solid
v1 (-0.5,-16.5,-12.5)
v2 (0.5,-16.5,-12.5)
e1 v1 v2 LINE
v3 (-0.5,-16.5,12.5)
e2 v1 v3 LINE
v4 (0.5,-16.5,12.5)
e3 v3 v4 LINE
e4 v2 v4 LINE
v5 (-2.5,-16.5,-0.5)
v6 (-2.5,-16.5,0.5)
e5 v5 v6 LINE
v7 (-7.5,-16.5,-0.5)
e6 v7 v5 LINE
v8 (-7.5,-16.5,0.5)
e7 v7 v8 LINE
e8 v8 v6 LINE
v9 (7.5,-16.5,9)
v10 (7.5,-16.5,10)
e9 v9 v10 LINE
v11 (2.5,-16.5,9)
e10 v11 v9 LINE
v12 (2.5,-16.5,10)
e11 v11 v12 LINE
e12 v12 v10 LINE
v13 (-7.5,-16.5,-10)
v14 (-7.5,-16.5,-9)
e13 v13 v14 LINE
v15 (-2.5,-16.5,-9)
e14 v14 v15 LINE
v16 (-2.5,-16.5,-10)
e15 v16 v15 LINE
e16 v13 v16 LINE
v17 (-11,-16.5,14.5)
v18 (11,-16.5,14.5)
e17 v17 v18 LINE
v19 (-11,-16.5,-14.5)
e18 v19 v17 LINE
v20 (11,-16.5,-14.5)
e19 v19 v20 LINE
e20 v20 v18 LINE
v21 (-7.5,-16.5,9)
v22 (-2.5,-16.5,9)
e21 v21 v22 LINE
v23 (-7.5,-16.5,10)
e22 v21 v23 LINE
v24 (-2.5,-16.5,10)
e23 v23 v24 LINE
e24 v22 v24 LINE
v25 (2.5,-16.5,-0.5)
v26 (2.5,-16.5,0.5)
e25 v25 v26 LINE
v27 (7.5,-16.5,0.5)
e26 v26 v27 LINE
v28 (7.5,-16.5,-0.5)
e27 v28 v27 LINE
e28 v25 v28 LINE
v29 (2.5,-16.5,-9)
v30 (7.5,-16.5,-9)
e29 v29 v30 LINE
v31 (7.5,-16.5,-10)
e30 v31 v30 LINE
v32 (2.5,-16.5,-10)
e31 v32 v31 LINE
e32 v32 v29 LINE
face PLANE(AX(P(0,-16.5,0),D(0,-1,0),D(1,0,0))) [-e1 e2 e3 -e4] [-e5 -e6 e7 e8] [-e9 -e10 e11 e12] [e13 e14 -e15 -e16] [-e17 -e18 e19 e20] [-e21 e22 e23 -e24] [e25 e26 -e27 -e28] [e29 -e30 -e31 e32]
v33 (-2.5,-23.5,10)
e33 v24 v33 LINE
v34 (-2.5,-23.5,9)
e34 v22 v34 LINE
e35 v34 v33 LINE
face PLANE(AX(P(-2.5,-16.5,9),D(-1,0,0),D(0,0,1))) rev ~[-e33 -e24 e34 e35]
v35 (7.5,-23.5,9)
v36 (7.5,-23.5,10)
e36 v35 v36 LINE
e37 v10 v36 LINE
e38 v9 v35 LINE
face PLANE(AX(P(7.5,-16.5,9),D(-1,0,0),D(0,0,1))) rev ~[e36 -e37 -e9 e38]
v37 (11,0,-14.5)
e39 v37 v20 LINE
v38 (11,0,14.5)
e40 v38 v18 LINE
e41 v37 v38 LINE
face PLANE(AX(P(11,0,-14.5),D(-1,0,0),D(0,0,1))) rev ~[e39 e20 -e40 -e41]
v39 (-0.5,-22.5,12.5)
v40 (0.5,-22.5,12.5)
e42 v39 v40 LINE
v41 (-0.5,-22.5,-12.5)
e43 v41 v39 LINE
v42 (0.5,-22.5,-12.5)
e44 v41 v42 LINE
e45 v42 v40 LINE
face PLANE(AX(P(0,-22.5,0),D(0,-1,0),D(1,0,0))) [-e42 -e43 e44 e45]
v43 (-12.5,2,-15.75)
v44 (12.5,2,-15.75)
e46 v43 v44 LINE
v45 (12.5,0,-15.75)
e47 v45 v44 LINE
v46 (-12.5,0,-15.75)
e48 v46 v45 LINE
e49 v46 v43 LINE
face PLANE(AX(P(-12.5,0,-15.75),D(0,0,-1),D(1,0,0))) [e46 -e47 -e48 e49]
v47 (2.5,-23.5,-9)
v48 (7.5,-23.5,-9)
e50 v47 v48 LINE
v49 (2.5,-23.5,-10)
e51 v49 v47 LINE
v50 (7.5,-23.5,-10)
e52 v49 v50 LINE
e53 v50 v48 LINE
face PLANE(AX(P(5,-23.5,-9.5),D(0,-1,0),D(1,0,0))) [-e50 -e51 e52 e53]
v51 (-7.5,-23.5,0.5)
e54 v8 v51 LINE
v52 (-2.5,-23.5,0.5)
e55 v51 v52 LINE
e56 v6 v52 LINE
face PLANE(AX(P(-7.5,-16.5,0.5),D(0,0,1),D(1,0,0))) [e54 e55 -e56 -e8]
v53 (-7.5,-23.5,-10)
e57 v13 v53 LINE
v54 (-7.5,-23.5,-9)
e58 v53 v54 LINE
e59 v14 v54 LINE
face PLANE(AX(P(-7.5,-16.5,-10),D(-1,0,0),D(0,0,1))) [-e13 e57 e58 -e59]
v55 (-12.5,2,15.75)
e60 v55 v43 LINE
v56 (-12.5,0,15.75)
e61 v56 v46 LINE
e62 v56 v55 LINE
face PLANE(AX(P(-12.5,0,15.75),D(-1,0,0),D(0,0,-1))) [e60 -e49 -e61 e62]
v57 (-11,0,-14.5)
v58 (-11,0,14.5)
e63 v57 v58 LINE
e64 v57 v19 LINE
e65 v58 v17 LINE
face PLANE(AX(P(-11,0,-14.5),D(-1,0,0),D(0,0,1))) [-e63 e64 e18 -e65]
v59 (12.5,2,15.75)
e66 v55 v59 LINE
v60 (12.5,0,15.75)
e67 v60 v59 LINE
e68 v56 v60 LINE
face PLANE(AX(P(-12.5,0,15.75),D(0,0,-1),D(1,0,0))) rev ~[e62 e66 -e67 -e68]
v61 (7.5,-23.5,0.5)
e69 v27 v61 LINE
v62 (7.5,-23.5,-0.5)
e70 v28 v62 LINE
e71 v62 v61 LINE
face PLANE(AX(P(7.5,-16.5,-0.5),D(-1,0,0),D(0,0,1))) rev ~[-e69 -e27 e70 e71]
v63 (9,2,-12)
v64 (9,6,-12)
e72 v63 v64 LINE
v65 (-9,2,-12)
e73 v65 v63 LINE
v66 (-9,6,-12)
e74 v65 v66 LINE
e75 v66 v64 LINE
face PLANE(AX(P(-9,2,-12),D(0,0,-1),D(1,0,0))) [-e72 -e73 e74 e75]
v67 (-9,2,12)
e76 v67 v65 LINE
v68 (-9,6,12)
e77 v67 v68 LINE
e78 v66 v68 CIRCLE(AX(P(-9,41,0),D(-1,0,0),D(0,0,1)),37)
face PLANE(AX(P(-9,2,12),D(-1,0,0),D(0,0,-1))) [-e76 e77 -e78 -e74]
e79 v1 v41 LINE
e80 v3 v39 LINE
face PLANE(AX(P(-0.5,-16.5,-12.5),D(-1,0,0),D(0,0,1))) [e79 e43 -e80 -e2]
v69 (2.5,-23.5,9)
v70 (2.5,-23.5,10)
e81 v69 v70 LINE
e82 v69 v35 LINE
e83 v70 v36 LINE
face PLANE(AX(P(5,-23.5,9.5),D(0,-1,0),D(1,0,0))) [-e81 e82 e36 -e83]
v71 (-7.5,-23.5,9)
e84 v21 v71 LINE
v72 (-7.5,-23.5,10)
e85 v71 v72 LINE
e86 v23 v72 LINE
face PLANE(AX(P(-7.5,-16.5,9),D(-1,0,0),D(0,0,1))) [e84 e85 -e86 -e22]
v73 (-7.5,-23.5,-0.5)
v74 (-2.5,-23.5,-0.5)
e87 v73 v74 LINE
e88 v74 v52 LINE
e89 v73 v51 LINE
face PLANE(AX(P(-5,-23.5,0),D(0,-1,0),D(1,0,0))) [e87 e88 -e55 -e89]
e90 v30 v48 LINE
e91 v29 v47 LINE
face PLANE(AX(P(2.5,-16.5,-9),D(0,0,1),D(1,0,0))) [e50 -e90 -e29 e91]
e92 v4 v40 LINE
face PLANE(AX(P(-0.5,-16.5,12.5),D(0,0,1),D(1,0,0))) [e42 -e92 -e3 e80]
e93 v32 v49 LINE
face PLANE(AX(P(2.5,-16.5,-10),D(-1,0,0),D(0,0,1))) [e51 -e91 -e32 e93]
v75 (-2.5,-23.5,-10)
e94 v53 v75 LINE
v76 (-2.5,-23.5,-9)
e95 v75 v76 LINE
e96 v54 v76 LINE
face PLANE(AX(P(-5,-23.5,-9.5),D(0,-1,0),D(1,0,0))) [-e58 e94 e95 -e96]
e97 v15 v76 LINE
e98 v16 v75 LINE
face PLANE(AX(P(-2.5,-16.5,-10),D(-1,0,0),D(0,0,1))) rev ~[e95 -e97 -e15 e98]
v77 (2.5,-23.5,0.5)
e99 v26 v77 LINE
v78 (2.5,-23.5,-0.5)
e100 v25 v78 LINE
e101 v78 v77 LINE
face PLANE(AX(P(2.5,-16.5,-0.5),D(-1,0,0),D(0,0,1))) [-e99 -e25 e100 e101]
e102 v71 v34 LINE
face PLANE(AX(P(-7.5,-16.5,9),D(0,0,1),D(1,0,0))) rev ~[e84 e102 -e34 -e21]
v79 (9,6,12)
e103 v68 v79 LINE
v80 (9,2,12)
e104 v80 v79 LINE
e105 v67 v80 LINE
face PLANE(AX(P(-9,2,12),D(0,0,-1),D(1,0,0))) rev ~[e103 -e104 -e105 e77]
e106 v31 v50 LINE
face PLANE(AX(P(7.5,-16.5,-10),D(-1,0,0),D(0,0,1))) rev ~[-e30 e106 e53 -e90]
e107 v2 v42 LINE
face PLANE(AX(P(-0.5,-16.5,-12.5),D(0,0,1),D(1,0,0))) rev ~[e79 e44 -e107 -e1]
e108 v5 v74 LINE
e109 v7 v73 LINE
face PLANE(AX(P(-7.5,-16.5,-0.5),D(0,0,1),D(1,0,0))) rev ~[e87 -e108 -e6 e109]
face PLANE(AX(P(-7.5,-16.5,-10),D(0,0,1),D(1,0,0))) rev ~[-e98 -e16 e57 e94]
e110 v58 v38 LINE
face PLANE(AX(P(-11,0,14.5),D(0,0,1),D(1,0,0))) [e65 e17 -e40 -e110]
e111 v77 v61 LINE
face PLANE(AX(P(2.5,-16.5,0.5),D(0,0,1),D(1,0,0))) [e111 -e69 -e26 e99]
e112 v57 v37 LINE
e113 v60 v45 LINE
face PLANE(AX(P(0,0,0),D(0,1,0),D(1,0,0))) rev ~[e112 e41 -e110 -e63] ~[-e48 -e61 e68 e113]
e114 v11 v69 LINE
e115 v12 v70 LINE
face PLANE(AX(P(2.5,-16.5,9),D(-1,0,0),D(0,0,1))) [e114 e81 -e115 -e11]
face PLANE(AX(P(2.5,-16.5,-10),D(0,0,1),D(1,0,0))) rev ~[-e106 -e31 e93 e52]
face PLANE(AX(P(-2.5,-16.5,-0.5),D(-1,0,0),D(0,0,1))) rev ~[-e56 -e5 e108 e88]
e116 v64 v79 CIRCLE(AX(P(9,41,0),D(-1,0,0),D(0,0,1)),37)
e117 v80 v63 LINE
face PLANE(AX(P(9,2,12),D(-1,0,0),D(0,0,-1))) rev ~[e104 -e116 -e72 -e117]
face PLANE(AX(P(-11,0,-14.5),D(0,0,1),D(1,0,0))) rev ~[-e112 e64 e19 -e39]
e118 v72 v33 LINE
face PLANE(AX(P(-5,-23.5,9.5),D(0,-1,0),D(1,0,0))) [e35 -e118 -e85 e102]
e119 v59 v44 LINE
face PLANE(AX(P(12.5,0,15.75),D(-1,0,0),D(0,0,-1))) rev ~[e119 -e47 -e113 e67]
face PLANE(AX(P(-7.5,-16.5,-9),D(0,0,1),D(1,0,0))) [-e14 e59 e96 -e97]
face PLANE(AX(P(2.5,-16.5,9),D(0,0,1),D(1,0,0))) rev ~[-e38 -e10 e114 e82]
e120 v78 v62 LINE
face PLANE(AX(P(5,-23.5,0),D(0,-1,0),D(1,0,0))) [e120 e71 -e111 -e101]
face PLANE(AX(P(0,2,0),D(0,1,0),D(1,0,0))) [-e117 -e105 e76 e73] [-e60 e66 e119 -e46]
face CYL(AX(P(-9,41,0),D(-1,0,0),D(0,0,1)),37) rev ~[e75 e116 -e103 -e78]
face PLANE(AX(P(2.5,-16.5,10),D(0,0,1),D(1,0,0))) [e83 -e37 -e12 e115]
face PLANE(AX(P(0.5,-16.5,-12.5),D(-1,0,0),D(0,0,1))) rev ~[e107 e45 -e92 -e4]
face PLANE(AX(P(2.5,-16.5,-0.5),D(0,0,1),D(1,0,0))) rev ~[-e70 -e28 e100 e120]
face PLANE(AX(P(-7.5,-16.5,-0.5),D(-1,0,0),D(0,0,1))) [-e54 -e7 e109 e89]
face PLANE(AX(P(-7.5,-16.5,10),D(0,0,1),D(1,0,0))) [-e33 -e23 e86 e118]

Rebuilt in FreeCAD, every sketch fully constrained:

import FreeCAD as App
import Part
import Sketcher

doc = App.newDocument("Part")
body = doc.addObject("PartDesign::Body", "Body")

# Sketch on XZ plane
sketch1 = body.newObject("Sketcher::SketchObject", "Sketch")
sketch1.AttachmentSupport = (doc.getObject("XZ_Plane"), [""])
sketch1.MapMode = "FlatFace"
sketch1.addGeometry(Part.LineSegment(App.Vector(-12.5, -15.75, 0), App.Vector(-12.5, 15.75, 0)), False)
sketch1.addGeometry(Part.LineSegment(App.Vector(-12.5, 15.75, 0), App.Vector(12.5, 15.75, 0)), False)
sketch1.addGeometry(Part.LineSegment(App.Vector(12.5, 15.75, 0), App.Vector(12.5, -15.75, 0)), False)
sketch1.addGeometry(Part.LineSegment(App.Vector(12.5, -15.75, 0), App.Vector(-12.5, -15.75, 0)), False)
sketch1.addConstraint(Sketcher.Constraint("Coincident", 0, 2, 1, 1))
sketch1.addConstraint(Sketcher.Constraint("Coincident", 1, 2, 2, 1))
sketch1.addConstraint(Sketcher.Constraint("Coincident", 2, 2, 3, 1))
sketch1.addConstraint(Sketcher.Constraint("Coincident", 3, 2, 0, 1))
sketch1.addConstraint(Sketcher.Constraint("Vertical", 0))
sketch1.addConstraint(Sketcher.Constraint("Horizontal", 1))
sketch1.addConstraint(Sketcher.Constraint("Vertical", 2))
sketch1.addConstraint(Sketcher.Constraint("Horizontal", 3))
sketch1.addConstraint(Sketcher.Constraint("Symmetric", 0, 2, 2, 2, -1, 1))
sketch1.addConstraint(Sketcher.Constraint("DistanceX", 1, 1, 1, 2, 25.0))
sketch1.addConstraint(Sketcher.Constraint("DistanceY", 0, 1, 0, 2, 31.5))
pad1 = body.newObject("PartDesign::Pad", "Pad")
pad1.Profile = sketch1
pad1.Length = 2
pad1.Reversed = True

# Sketch on XZ plane
sketch2 = body.newObject("Sketcher::SketchObject", "Sketch001")
sketch2.AttachmentSupport = (doc.getObject("XZ_Plane"), [""])
sketch2.MapMode = "FlatFace"
sketch2.addGeometry(Part.LineSegment(App.Vector(-11, 14.5, 0), App.Vector(-11, -14.5, 0)), False)
sketch2.addGeometry(Part.LineSegment(App.Vector(-11, -14.5, 0), App.Vector(11, -14.5, 0)), False)
sketch2.addGeometry(Part.LineSegment(App.Vector(11, -14.5, 0), App.Vector(11, 14.5, 0)), False)
sketch2.addGeometry(Part.LineSegment(App.Vector(11, 14.5, 0), App.Vector(-11, 14.5, 0)), False)
sketch2.addConstraint(Sketcher.Constraint("Coincident", 0, 2, 1, 1))
sketch2.addConstraint(Sketcher.Constraint("Coincident", 1, 2, 2, 1))
sketch2.addConstraint(Sketcher.Constraint("Coincident", 2, 2, 3, 1))
sketch2.addConstraint(Sketcher.Constraint("Coincident", 3, 2, 0, 1))
sketch2.addConstraint(Sketcher.Constraint("Vertical", 0))
sketch2.addConstraint(Sketcher.Constraint("Horizontal", 1))
sketch2.addConstraint(Sketcher.Constraint("Vertical", 2))
sketch2.addConstraint(Sketcher.Constraint("Horizontal", 3))
sketch2.addConstraint(Sketcher.Constraint("Symmetric", 0, 2, 2, 2, -1, 1))
sketch2.addConstraint(Sketcher.Constraint("DistanceX", 1, 1, 1, 2, 22.0))
sketch2.addConstraint(Sketcher.Constraint("DistanceY", 0, 2, 0, 1, 29.0))
pad2 = body.newObject("PartDesign::Pad", "Pad001")
pad2.Profile = sketch2
pad2.Length = 16.5

# Sketch on XZ plane
sketch3 = body.newObject("Sketcher::SketchObject", "Sketch002")
sketch3.AttachmentSupport = (doc.getObject("XZ_Plane"), [""])
sketch3.MapMode = "FlatFace"
sketch3.AttachmentOffset = App.Placement(App.Vector(0, 0, 16.5), App.Rotation())
sketch3.addGeometry(Part.LineSegment(App.Vector(-0.5, 12.5, 0), App.Vector(-0.5, -12.5, 0)), False)
sketch3.addGeometry(Part.LineSegment(App.Vector(-0.5, -12.5, 0), App.Vector(0.5, -12.5, 0)), False)
sketch3.addGeometry(Part.LineSegment(App.Vector(0.5, -12.5, 0), App.Vector(0.5, 12.5, 0)), False)
sketch3.addGeometry(Part.LineSegment(App.Vector(0.5, 12.5, 0), App.Vector(-0.5, 12.5, 0)), False)
sketch3.addConstraint(Sketcher.Constraint("Coincident", 0, 2, 1, 1))
sketch3.addConstraint(Sketcher.Constraint("Coincident", 1, 2, 2, 1))
sketch3.addConstraint(Sketcher.Constraint("Coincident", 2, 2, 3, 1))
sketch3.addConstraint(Sketcher.Constraint("Coincident", 3, 2, 0, 1))
sketch3.addConstraint(Sketcher.Constraint("Vertical", 0))
sketch3.addConstraint(Sketcher.Constraint("Horizontal", 1))
sketch3.addConstraint(Sketcher.Constraint("Vertical", 2))
sketch3.addConstraint(Sketcher.Constraint("Horizontal", 3))
sketch3.addConstraint(Sketcher.Constraint("Symmetric", 0, 2, 2, 2, -1, 1))
sketch3.addConstraint(Sketcher.Constraint("DistanceX", 1, 1, 1, 2, 1.0))
sketch3.addConstraint(Sketcher.Constraint("DistanceY", 0, 2, 0, 1, 25.0))
pad3 = body.newObject("PartDesign::Pad", "Pad002")
pad3.Profile = sketch3
pad3.Length = 6

# Sketch on XZ plane
sketch4 = body.newObject("Sketcher::SketchObject", "Sketch003")
sketch4.AttachmentSupport = (doc.getObject("XZ_Plane"), [""])
sketch4.MapMode = "FlatFace"
sketch4.AttachmentOffset = App.Placement(App.Vector(0, 0, 16.5), App.Rotation())
sketch4.addGeometry(Part.LineSegment(App.Vector(-7.5, 10, 0), App.Vector(-7.5, 9, 0)), False)
sketch4.addGeometry(Part.LineSegment(App.Vector(-7.5, 9, 0), App.Vector(-2.5, 9, 0)), False)
sketch4.addGeometry(Part.LineSegment(App.Vector(-2.5, 9, 0), App.Vector(-2.5, 10, 0)), False)
sketch4.addGeometry(Part.LineSegment(App.Vector(-2.5, 10, 0), App.Vector(-7.5, 10, 0)), False)
sketch4.addGeometry(Part.LineSegment(App.Vector(-7.5, 0.5, 0), App.Vector(-7.5, -0.5, 0)), False)
sketch4.addGeometry(Part.LineSegment(App.Vector(-7.5, -0.5, 0), App.Vector(-2.5, -0.5, 0)), False)
sketch4.addGeometry(Part.LineSegment(App.Vector(-2.5, -0.5, 0), App.Vector(-2.5, 0.5, 0)), False)
sketch4.addGeometry(Part.LineSegment(App.Vector(-2.5, 0.5, 0), App.Vector(-7.5, 0.5, 0)), False)
sketch4.addGeometry(Part.LineSegment(App.Vector(-7.5, -9, 0), App.Vector(-7.5, -10, 0)), False)
sketch4.addGeometry(Part.LineSegment(App.Vector(-7.5, -10, 0), App.Vector(-2.5, -10, 0)), False)
sketch4.addGeometry(Part.LineSegment(App.Vector(-2.5, -10, 0), App.Vector(-2.5, -9, 0)), False)
sketch4.addGeometry(Part.LineSegment(App.Vector(-2.5, -9, 0), App.Vector(-7.5, -9, 0)), False)
sketch4.addGeometry(Part.LineSegment(App.Vector(2.5, -9, 0), App.Vector(2.5, -10, 0)), False)
sketch4.addGeometry(Part.LineSegment(App.Vector(2.5, -10, 0), App.Vector(7.5, -10, 0)), False)
sketch4.addGeometry(Part.LineSegment(App.Vector(7.5, -10, 0), App.Vector(7.5, -9, 0)), False)
sketch4.addGeometry(Part.LineSegment(App.Vector(7.5, -9, 0), App.Vector(2.5, -9, 0)), False)
sketch4.addGeometry(Part.LineSegment(App.Vector(2.5, 0.5, 0), App.Vector(2.5, -0.5, 0)), False)
sketch4.addGeometry(Part.LineSegment(App.Vector(2.5, -0.5, 0), App.Vector(7.5, -0.5, 0)), False)
sketch4.addGeometry(Part.LineSegment(App.Vector(7.5, -0.5, 0), App.Vector(7.5, 0.5, 0)), False)
sketch4.addGeometry(Part.LineSegment(App.Vector(7.5, 0.5, 0), App.Vector(2.5, 0.5, 0)), False)
sketch4.addGeometry(Part.LineSegment(App.Vector(2.5, 10, 0), App.Vector(2.5, 9, 0)), False)
sketch4.addGeometry(Part.LineSegment(App.Vector(2.5, 9, 0), App.Vector(7.5, 9, 0)), False)
sketch4.addGeometry(Part.LineSegment(App.Vector(7.5, 9, 0), App.Vector(7.5, 10, 0)), False)
sketch4.addGeometry(Part.LineSegment(App.Vector(7.5, 10, 0), App.Vector(2.5, 10, 0)), False)
sketch4.addConstraint(Sketcher.Constraint("Coincident", 0, 2, 1, 1))
sketch4.addConstraint(Sketcher.Constraint("Coincident", 1, 2, 2, 1))
sketch4.addConstraint(Sketcher.Constraint("Coincident", 2, 2, 3, 1))
sketch4.addConstraint(Sketcher.Constraint("Coincident", 3, 2, 0, 1))
sketch4.addConstraint(Sketcher.Constraint("Coincident", 4, 2, 5, 1))
sketch4.addConstraint(Sketcher.Constraint("Coincident", 5, 2, 6, 1))
sketch4.addConstraint(Sketcher.Constraint("Coincident", 6, 2, 7, 1))
sketch4.addConstraint(Sketcher.Constraint("Coincident", 7, 2, 4, 1))
sketch4.addConstraint(Sketcher.Constraint("Coincident", 8, 2, 9, 1))
sketch4.addConstraint(Sketcher.Constraint("Coincident", 9, 2, 10, 1))
sketch4.addConstraint(Sketcher.Constraint("Coincident", 10, 2, 11, 1))
sketch4.addConstraint(Sketcher.Constraint("Coincident", 11, 2, 8, 1))
sketch4.addConstraint(Sketcher.Constraint("Coincident", 12, 2, 13, 1))
sketch4.addConstraint(Sketcher.Constraint("Coincident", 13, 2, 14, 1))
sketch4.addConstraint(Sketcher.Constraint("Coincident", 14, 2, 15, 1))
sketch4.addConstraint(Sketcher.Constraint("Coincident", 15, 2, 12, 1))
sketch4.addConstraint(Sketcher.Constraint("Coincident", 16, 2, 17, 1))
sketch4.addConstraint(Sketcher.Constraint("Coincident", 17, 2, 18, 1))
sketch4.addConstraint(Sketcher.Constraint("Coincident", 18, 2, 19, 1))
sketch4.addConstraint(Sketcher.Constraint("Coincident", 19, 2, 16, 1))
sketch4.addConstraint(Sketcher.Constraint("Coincident", 20, 2, 21, 1))
sketch4.addConstraint(Sketcher.Constraint("Coincident", 21, 2, 22, 1))
sketch4.addConstraint(Sketcher.Constraint("Coincident", 22, 2, 23, 1))
sketch4.addConstraint(Sketcher.Constraint("Coincident", 23, 2, 20, 1))
sketch4.addConstraint(Sketcher.Constraint("Vertical", 0))
sketch4.addConstraint(Sketcher.Constraint("Horizontal", 1))
sketch4.addConstraint(Sketcher.Constraint("Vertical", 2))
sketch4.addConstraint(Sketcher.Constraint("Horizontal", 3))
sketch4.addConstraint(Sketcher.Constraint("Vertical", 4))
sketch4.addConstraint(Sketcher.Constraint("Horizontal", 5))
sketch4.addConstraint(Sketcher.Constraint("Vertical", 6))
sketch4.addConstraint(Sketcher.Constraint("Horizontal", 7))
sketch4.addConstraint(Sketcher.Constraint("Vertical", 8))
sketch4.addConstraint(Sketcher.Constraint("Horizontal", 9))
sketch4.addConstraint(Sketcher.Constraint("Vertical", 10))
sketch4.addConstraint(Sketcher.Constraint("Horizontal", 11))
sketch4.addConstraint(Sketcher.Constraint("Vertical", 12))
sketch4.addConstraint(Sketcher.Constraint("Horizontal", 13))
sketch4.addConstraint(Sketcher.Constraint("Vertical", 14))
sketch4.addConstraint(Sketcher.Constraint("Horizontal", 15))
sketch4.addConstraint(Sketcher.Constraint("Vertical", 16))
sketch4.addConstraint(Sketcher.Constraint("Horizontal", 17))
sketch4.addConstraint(Sketcher.Constraint("Vertical", 18))
sketch4.addConstraint(Sketcher.Constraint("Horizontal", 19))
sketch4.addConstraint(Sketcher.Constraint("Vertical", 20))
sketch4.addConstraint(Sketcher.Constraint("Horizontal", 21))
sketch4.addConstraint(Sketcher.Constraint("Vertical", 22))
sketch4.addConstraint(Sketcher.Constraint("Horizontal", 23))
sketch4.addConstraint(Sketcher.Constraint("Symmetric", 2, 2, 12, 2, -1, 1))
sketch4.addConstraint(Sketcher.Constraint("Symmetric", 0, 2, 14, 2, -1, 1))
sketch4.addConstraint(Sketcher.Constraint("Symmetric", 6, 2, 16, 2, -1, 1))
sketch4.addConstraint(Sketcher.Constraint("Symmetric", 4, 2, 18, 2, -1, 1))
sketch4.addConstraint(Sketcher.Constraint("Symmetric", 10, 2, 20, 2, -1, 1))
sketch4.addConstraint(Sketcher.Constraint("Symmetric", 8, 2, 22, 2, -1, 1))
sketch4.addConstraint(Sketcher.Constraint("Symmetric", 9, 2, 12, 2, -2))
sketch4.addConstraint(Sketcher.Constraint("Symmetric", 11, 2, 14, 2, -2))
sketch4.addConstraint(Sketcher.Constraint("Horizontal", 5, 2, 16, 2))
sketch4.addConstraint(Sketcher.Constraint("Vertical", 3, 2, 4, 2))
sketch4.addConstraint(Sketcher.Constraint("Vertical", 2, 2, 5, 2))
sketch4.addConstraint(Sketcher.Constraint("Equal", 2, 4))
sketch4.addConstraint(Sketcher.Constraint("DistanceX", 1, 1, 1, 2, 5.0))
sketch4.addConstraint(Sketcher.Constraint("DistanceY", 0, 2, 0, 1, 1.0))
sketch4.addConstraint(Sketcher.Constraint("DistanceY", -1, 1, 0, 2, 9.0))
sketch4.addConstraint(Sketcher.Constraint("DistanceX", 9, 2, 12, 2, 5.0))
pad4 = body.newObject("PartDesign::Pad", "Pad003")
pad4.Profile = sketch4
pad4.Length = 7

# Sketch on XZ plane
sketch5 = body.newObject("Sketcher::SketchObject", "Sketch004")
sketch5.AttachmentSupport = (doc.getObject("XZ_Plane"), [""])
sketch5.MapMode = "FlatFace"
sketch5.AttachmentOffset = App.Placement(App.Vector(0, 0, -2), App.Rotation())
sketch5.addGeometry(Part.LineSegment(App.Vector(-9, -12, 0), App.Vector(-9, 12, 0)), False)
sketch5.addGeometry(Part.LineSegment(App.Vector(-9, 12, 0), App.Vector(9, 12, 0)), False)
sketch5.addGeometry(Part.LineSegment(App.Vector(9, 12, 0), App.Vector(9, -12, 0)), False)
sketch5.addGeometry(Part.LineSegment(App.Vector(9, -12, 0), App.Vector(-9, -12, 0)), False)
sketch5.addConstraint(Sketcher.Constraint("Coincident", 0, 2, 1, 1))
sketch5.addConstraint(Sketcher.Constraint("Coincident", 1, 2, 2, 1))
sketch5.addConstraint(Sketcher.Constraint("Coincident", 2, 2, 3, 1))
sketch5.addConstraint(Sketcher.Constraint("Coincident", 3, 2, 0, 1))
sketch5.addConstraint(Sketcher.Constraint("Vertical", 0))
sketch5.addConstraint(Sketcher.Constraint("Horizontal", 1))
sketch5.addConstraint(Sketcher.Constraint("Vertical", 2))
sketch5.addConstraint(Sketcher.Constraint("Horizontal", 3))
sketch5.addConstraint(Sketcher.Constraint("Symmetric", 0, 2, 2, 2, -1, 1))
sketch5.addConstraint(Sketcher.Constraint("DistanceX", 1, 1, 1, 2, 18.0))
sketch5.addConstraint(Sketcher.Constraint("DistanceY", 0, 1, 0, 2, 24.0))
pad5 = body.newObject("PartDesign::Pad", "Pad004")
pad5.Profile = sketch5
pad5.Length = 4
pad5.Reversed = True

# Sketch on YZ plane
sketch6 = body.newObject("Sketcher::SketchObject", "Sketch005")
sketch6.AttachmentSupport = (doc.getObject("YZ_Plane"), [""])
sketch6.MapMode = "FlatFace"
sketch6.AttachmentOffset = App.Placement(App.Vector(0, 0, -9), App.Rotation())
sketch6.addGeometry(Part.Circle(App.Vector(41, 0, 0), App.Vector(0, 0, 1), 37), False)
sketch6.addConstraint(Sketcher.Constraint("PointOnObject", 0, 3, -1))
sketch6.addConstraint(Sketcher.Constraint("Diameter", 0, 74.0))
sketch6.addConstraint(Sketcher.Constraint("DistanceX", -1, 1, 0, 3, 41.0))
pocket1 = body.newObject("PartDesign::Pocket", "Pocket")
pocket1.Profile = sketch6
pocket1.Type = "ThroughAll"
pocket1.Reversed = True

doc.recompute()
